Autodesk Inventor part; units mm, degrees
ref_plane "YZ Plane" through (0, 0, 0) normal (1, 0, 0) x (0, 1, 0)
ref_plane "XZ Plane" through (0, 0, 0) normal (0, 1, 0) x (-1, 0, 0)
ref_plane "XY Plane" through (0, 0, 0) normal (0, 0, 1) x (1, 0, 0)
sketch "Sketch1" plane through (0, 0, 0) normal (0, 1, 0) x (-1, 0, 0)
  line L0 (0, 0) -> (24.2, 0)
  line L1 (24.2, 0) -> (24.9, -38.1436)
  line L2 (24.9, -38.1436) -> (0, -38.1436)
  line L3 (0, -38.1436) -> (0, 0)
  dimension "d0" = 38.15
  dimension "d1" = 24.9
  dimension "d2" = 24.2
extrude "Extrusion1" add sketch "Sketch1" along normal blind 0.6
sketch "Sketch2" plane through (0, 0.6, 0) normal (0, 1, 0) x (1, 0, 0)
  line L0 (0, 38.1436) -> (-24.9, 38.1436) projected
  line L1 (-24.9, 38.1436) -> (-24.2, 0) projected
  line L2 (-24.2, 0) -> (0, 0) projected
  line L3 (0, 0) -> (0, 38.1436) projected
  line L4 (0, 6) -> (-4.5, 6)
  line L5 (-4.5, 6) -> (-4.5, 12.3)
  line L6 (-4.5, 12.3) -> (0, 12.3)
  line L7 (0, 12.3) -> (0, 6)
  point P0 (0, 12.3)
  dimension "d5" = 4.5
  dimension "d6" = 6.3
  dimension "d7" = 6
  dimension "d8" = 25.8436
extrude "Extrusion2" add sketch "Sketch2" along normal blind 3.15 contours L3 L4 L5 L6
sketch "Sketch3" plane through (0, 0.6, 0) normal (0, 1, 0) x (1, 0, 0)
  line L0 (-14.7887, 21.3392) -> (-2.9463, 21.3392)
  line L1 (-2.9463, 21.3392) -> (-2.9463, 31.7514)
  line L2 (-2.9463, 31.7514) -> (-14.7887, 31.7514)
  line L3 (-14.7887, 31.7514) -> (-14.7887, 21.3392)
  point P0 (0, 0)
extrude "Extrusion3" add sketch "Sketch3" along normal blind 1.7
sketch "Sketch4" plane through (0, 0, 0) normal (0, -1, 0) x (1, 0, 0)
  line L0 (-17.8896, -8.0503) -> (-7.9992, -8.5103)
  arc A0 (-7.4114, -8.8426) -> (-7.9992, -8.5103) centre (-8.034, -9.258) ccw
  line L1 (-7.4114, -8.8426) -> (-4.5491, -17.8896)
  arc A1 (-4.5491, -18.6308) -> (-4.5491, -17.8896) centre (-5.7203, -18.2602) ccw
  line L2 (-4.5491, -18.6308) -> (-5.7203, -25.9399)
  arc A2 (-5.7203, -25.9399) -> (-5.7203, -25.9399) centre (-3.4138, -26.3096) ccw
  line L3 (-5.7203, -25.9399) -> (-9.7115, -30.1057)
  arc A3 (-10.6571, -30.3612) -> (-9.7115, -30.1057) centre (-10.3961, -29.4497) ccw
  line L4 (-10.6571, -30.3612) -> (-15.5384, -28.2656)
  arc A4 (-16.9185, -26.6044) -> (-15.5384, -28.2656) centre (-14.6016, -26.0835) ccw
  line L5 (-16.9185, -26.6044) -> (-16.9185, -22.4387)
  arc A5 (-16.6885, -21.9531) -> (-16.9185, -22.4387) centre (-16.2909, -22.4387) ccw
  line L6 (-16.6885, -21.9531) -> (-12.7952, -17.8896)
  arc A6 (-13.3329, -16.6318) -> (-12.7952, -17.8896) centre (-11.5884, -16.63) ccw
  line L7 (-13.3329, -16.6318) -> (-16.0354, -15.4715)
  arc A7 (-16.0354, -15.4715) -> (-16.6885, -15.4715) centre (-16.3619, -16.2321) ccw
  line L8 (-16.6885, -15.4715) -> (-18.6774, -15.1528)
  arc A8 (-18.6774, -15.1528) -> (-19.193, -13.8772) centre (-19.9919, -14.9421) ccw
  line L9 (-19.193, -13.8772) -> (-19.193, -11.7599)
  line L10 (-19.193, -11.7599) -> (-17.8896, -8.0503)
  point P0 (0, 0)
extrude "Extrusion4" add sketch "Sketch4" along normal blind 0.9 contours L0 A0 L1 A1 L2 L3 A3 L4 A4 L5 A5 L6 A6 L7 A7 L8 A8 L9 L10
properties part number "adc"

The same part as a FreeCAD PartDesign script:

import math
import FreeCAD as App
import Part
import Sketcher
from FreeCAD import Vector

doc = App.newDocument("Part")
params = doc.addObject("Spreadsheet::Sheet", "Params")
for row, (alias, value) in enumerate([
    ("sketch1_width", "24.2 mm"),
    ("sketch1_width2", "24.9 mm"),
    ("sketch1_length", "38.15 mm"),
    ("pad1_length", "0.6 mm"),
    ("sketch2_width", "4.5 mm"),
    ("sketch2_height", "6.3 mm"),
    ("pad2_length", "3.15 mm"),
    ("pad3_length", "1.7 mm"),
    ("pad4_length", "0.9 mm"),
], start=1):
    params.set(f"A{row}", alias)
    params.set(f"B{row}", "=" + value)
    params.setAlias(f"B{row}", alias)

body = doc.addObject("PartDesign::Body", "Body")

# Sketch on XZ plane
sketch1 = doc.addObject("Sketcher::SketchObject", "Sketch")
body.addObject(sketch1)
sketch1.AttachmentSupport = (doc.XZ_Plane, [""])
sketch1.MapMode = "FlatFace"
sketch1.addGeometry([
    Part.LineSegment(Vector(-24, 0, 0), Vector(0, 0, 0)),
    Part.LineSegment(Vector(0, 0, 0), Vector(0, -38, 0)),
    Part.LineSegment(Vector(0, -38, 0), Vector(-25, -38, 0)),
    Part.LineSegment(Vector(-25, -38, 0), Vector(-24, 0, 0)),
], False)
sketch1.addConstraint([
    Sketcher.Constraint("Coincident", 0, 2, 1, 1),
    Sketcher.Constraint("Coincident", 1, 2, 2, 1),
    Sketcher.Constraint("Coincident", 2, 2, 3, 1),
    Sketcher.Constraint("Coincident", 3, 2, 0, 1),
    Sketcher.Constraint("Horizontal", 0),
    Sketcher.Constraint("Vertical", 1),
    Sketcher.Constraint("Horizontal", 2),
    Sketcher.Constraint("Coincident", 0, 2, -1, 1),
    Sketcher.Constraint("DistanceX", 0, 1, 0, 2, 24.2),
    Sketcher.Constraint("DistanceX", 2, 2, 2, 1, 24.9),
    Sketcher.Constraint("Distance", 3, 38.15),
])
sketch1.setExpression("Constraints[8]", "Params.sketch1_width")
sketch1.setExpression("Constraints[9]", "Params.sketch1_width2")
sketch1.setExpression("Constraints[10]", "Params.sketch1_length")
pad1 = doc.addObject("PartDesign::Pad", "Pad")
body.addObject(pad1)
pad1.Profile = sketch1
pad1.setExpression("Length", "Params.pad1_length")
pad1.Reversed = True

# Sketch on XZ plane
sketch2 = doc.addObject("Sketcher::SketchObject", "Sketch001")
body.addObject(sketch2)
sketch2.AttachmentSupport = (doc.XZ_Plane, [""])
sketch2.MapMode = "FlatFace"
sketch2.AttachmentOffset = App.Placement(Vector(0, 0, -0.6), App.Rotation())
sketch2.addGeometry([
    Part.LineSegment(Vector(0, -6, 0), Vector(0, -12.3, 0)),
    Part.LineSegment(Vector(0, -12.3, 0), Vector(-4.5, -12.3, 0)),
    Part.LineSegment(Vector(-4.5, -12.3, 0), Vector(-4.5, -6, 0)),
    Part.LineSegment(Vector(-4.5, -6, 0), Vector(0, -6, 0)),
], False)
sketch2.addConstraint([
    Sketcher.Constraint("Coincident", 0, 2, 1, 1),
    Sketcher.Constraint("Coincident", 1, 2, 2, 1),
    Sketcher.Constraint("Coincident", 2, 2, 3, 1),
    Sketcher.Constraint("Coincident", 3, 2, 0, 1),
    Sketcher.Constraint("Vertical", 0),
    Sketcher.Constraint("Horizontal", 1),
    Sketcher.Constraint("Vertical", 2),
    Sketcher.Constraint("Horizontal", 3),
    Sketcher.Constraint("PointOnObject", 0, 2, -2),
    Sketcher.Constraint("DistanceX", 1, 2, 1, 1, 4.5),
    Sketcher.Constraint("DistanceY", 0, 2, 0, 1, 6.3),
    Sketcher.Constraint("DistanceY", 2, 2, -1, 1, 6.0),
])
sketch2.setExpression("Constraints[9]", "Params.sketch2_width")
sketch2.setExpression("Constraints[10]", "Params.sketch2_height")
pad2 = doc.addObject("PartDesign::Pad", "Pad001")
body.addObject(pad2)
pad2.Profile = sketch2
pad2.setExpression("Length", "Params.pad2_length")
pad2.Reversed = True

# Sketch on XZ plane
sketch3 = doc.addObject("Sketcher::SketchObject", "Sketch002")
body.addObject(sketch3)
sketch3.AttachmentSupport = (doc.XZ_Plane, [""])
sketch3.MapMode = "FlatFace"
sketch3.AttachmentOffset = App.Placement(Vector(0, 0, -0.6), App.Rotation())
sketch3.addGeometry([
    Part.LineSegment(Vector(-15, -32, 0), Vector(-15, -21, 0)),
    Part.LineSegment(Vector(-15, -21, 0), Vector(-3, -21, 0)),
    Part.LineSegment(Vector(-3, -21, 0), Vector(-3, -32, 0)),
    Part.LineSegment(Vector(-3, -32, 0), Vector(-15, -32, 0)),
], False)
sketch3.addConstraint([
    Sketcher.Constraint("Coincident", 0, 2, 1, 1),
    Sketcher.Constraint("Coincident", 1, 2, 2, 1),
    Sketcher.Constraint("Coincident", 2, 2, 3, 1),
    Sketcher.Constraint("Coincident", 3, 2, 0, 1),
    Sketcher.Constraint("Vertical", 0),
    Sketcher.Constraint("Horizontal", 1),
    Sketcher.Constraint("Vertical", 2),
    Sketcher.Constraint("Horizontal", 3),
    Sketcher.Constraint("DistanceX", 1, 1, 1, 2, 11.8424),
    Sketcher.Constraint("DistanceY", 0, 1, 0, 2, 10.4122),
    Sketcher.Constraint("DistanceX", 0, 2, -1, 1, 14.7887),
    Sketcher.Constraint("DistanceY", 0, 2, -1, 1, 21.3392),
])
pad3 = doc.addObject("PartDesign::Pad", "Pad002")
body.addObject(pad3)
pad3.Profile = sketch3
pad3.setExpression("Length", "Params.pad3_length")
pad3.Reversed = True

# Sketch on XZ plane
sketch4 = doc.addObject("Sketcher::SketchObject", "Sketch003")
body.addObject(sketch4)
sketch4.AttachmentSupport = (doc.XZ_Plane, [""])
sketch4.MapMode = "FlatFace"
sketch4.addGeometry([
    Part.LineSegment(Vector(-7.9992, -8.5103, 0), Vector(-17.8896, -8.0503, 0)),  # 0
    Part.LineSegment(Vector(-17.8896, -8.0503, 0), Vector(-19.193, -11.7599, 0)),  # 1
    Part.LineSegment(Vector(-19.193, -11.7599, 0), Vector(-19.193, -13.8772, 0)),  # 2
    Part.ArcOfCircle(Part.Circle(Vector(-19.9919, -14.9421, 0), Vector(0, 0, 1), 1.331279), math.radians(-9.106426), math.radians(53.122355)),  # 3
    Part.LineSegment(Vector(-18.6774, -15.1528, 0), Vector(-16.6885, -15.4715, 0)),  # 4
    Part.ArcOfCircle(Part.Circle(Vector(-16.3619, -16.2321, 0), Vector(0, 0, 1), 0.827717), math.radians(66.767779), math.radians(113.238581)),  # 5
    Part.LineSegment(Vector(-16.0354, -15.4715, 0), Vector(-13.3329, -16.6318, 0)),  # 6
    Part.ArcOfCircle(Part.Circle(Vector(-11.5884, -16.63, 0), Vector(0, 0, 1), 1.744501), math.radians(-179.940881), math.radians(-133.773615)),  # 7
    Part.LineSegment(Vector(-12.7952, -17.8896, 0), Vector(-16.6885, -21.9531, 0)),  # 8
    Part.ArcOfCircle(Part.Circle(Vector(-16.2909, -22.4387, 0), Vector(0, 0, 1), 0.627609), math.radians(129.309961), math.radians(180)),  # 9
    Part.LineSegment(Vector(-16.9185, -22.4387, 0), Vector(-16.9185, -26.6044, 0)),  # 10
    Part.ArcOfCircle(Part.Circle(Vector(-14.6016, -26.0835, 0), Vector(0, 0, 1), 2.374734), math.radians(-167.329091), math.radians(-113.23439)),  # 11
    Part.LineSegment(Vector(-15.5384, -28.2656, 0), Vector(-10.6571, -30.3612, 0)),  # 12
    Part.ArcOfCircle(Part.Circle(Vector(-10.3961, -29.4497, 0), Vector(0, 0, 1), 0.948131), math.radians(-105.978599), math.radians(-43.777853)),  # 13
    Part.LineSegment(Vector(-9.7115, -30.1057, 0), Vector(-5.7203, -25.9399, 0)),  # 14
    Part.LineSegment(Vector(-5.7203, -25.9399, 0), Vector(-4.5491, -18.6308, 0)),  # 15
    Part.ArcOfCircle(Part.Circle(Vector(-5.7203, -18.2602, 0), Vector(0, 0, 1), 1.228436), math.radians(-17.558809), math.radians(17.558809)),  # 16
    Part.LineSegment(Vector(-4.5491, -17.8896, 0), Vector(-7.4114, -8.8426, 0)),  # 17
    Part.ArcOfCircle(Part.Circle(Vector(-8.034, -9.258, 0), Vector(0, 0, 1), 0.748457), math.radians(33.711299), math.radians(87.335221)),  # 18
], False)
sketch4.addConstraint([
    Sketcher.Constraint("Coincident", 0, 2, 1, 1),
    Sketcher.Constraint("Coincident", 1, 2, 2, 1),
    Sketcher.Constraint("Coincident", 2, 2, 3, 2),
    Sketcher.Constraint("Coincident", 3, 1, 4, 1),
    Sketcher.Constraint("Coincident", 4, 2, 5, 2),
    Sketcher.Constraint("Coincident", 5, 1, 6, 1),
    Sketcher.Constraint("Coincident", 6, 2, 7, 1),
    Sketcher.Constraint("Coincident", 7, 2, 8, 1),
    Sketcher.Constraint("Coincident", 8, 2, 9, 1),
    Sketcher.Constraint("Coincident", 9, 2, 10, 1),
    Sketcher.Constraint("Coincident", 10, 2, 11, 1),
    Sketcher.Constraint("Coincident", 11, 2, 12, 1),
    Sketcher.Constraint("Coincident", 12, 2, 13, 1),
    Sketcher.Constraint("Coincident", 13, 2, 14, 1),
    Sketcher.Constraint("Coincident", 14, 2, 15, 1),
    Sketcher.Constraint("Coincident", 15, 2, 16, 1),
    Sketcher.Constraint("Coincident", 16, 2, 17, 1),
    Sketcher.Constraint("Coincident", 17, 2, 18, 1),
    Sketcher.Constraint("Coincident", 18, 2, 0, 1),
    Sketcher.Constraint("Vertical", 2),
    Sketcher.Constraint("Vertical", 10),
    Sketcher.Constraint("Radius", 3, 1.3313),
    Sketcher.Constraint("Radius", 5, 0.8277),
    Sketcher.Constraint("Radius", 7, 1.7445),
    Sketcher.Constraint("Radius", 9, 0.6276),
    Sketcher.Constraint("Radius", 11, 2.3747),
    Sketcher.Constraint("Radius", 13, 0.9481),
    Sketcher.Constraint("Radius", 16, 1.2284),
    Sketcher.Constraint("Radius", 18, 0.7485),
    Sketcher.Constraint("DistanceY", 7, 3, -1, 1, 16.63),
    Sketcher.Constraint("DistanceY", 1, 2, -1, 1, 11.76),
    Sketcher.Constraint("DistanceY", 14, 2, -1, 1, 25.94),
    Sketcher.Constraint("DistanceX", 3, 3, 5, 3, 3.63),
    Sketcher.Constraint("DistanceY", 5, 3, 3, 3, 1.29),
    Sketcher.Constraint("DistanceX", 9, 2, 8, 2, 0.23),
    Sketcher.Constraint("DistanceX", 10, 2, 11, 2, 1.38),
    Sketcher.Constraint("DistanceY", 13, 2, 11, 2, 1.84),
    Sketcher.Constraint("DistanceX", 11, 3, 13, 2, 4.89),
    Sketcher.Constraint("DistanceY", 18, 2, 0, 2, 0.46),
    Sketcher.Constraint("Distance", 0, 9.901),
    Sketcher.Constraint("Distance", 1, 3.932),
    Sketcher.Constraint("Distance", 6, 2.941),
    Sketcher.Constraint("Distance", 17, 9.489),
    Sketcher.Constraint("DistanceY", 2, 2, 2, 1, 2.1173),
    Sketcher.Constraint("DistanceY", 10, 2, 10, 1, 4.1657),
    Sketcher.Constraint("DistanceX", 3, 3, -1, 1, 19.992),
    Sketcher.Constraint("DistanceY", 3, 3, -1, 1, 14.942),
    Sketcher.Constraint("DistanceX", 9, 3, -1, 1, 16.291),
    Sketcher.Constraint("DistanceX", 13, 3, -1, 1, 10.396),
    Sketcher.Constraint("DistanceX", 18, 3, -1, 1, 8.034),
    Sketcher.Constraint("DistanceY", 18, 3, -1, 1, 9.258),
    Sketcher.Constraint("DistanceX", 6, 2, -1, 1, 13.333),
    Sketcher.Constraint("DistanceY", 8, 2, -1, 1, 21.953),
    Sketcher.Constraint("DistanceX", 12, 2, -1, 1, 10.657),
    Sketcher.Constraint("DistanceX", 15, 2, -1, 1, 4.549),
    Sketcher.Constraint("DistanceX", 16, 2, -1, 1, 4.549),
    Sketcher.Constraint("DistanceY", 13, 3, 9, 3, 7.011),
    Sketcher.Constraint("DistanceX", 7, 3, 16, 3, 5.868),
    Sketcher.Constraint("DistanceY", 16, 3, 5, 3, 2.028),
    Sketcher.Constraint("DistanceY", 3, 1, 1, 2, 3.393),
    Sketcher.Constraint("DistanceX", 3, 1, 4, 2, 1.989),
    Sketcher.Constraint("DistanceX", 4, 2, 5, 1, 0.653),
    Sketcher.Constraint("DistanceX", 8, 2, 11, 3, 2.087),
    Sketcher.Constraint("DistanceY", 9, 2, 7, 2, 4.549),
    Sketcher.Constraint("Distance", 14, 5.7692),
])
pad4 = doc.addObject("PartDesign::Pad", "Pad003")
body.addObject(pad4)
pad4.Profile = sketch4
pad4.setExpression("Length", "Params.pad4_length")

doc.recompute()
